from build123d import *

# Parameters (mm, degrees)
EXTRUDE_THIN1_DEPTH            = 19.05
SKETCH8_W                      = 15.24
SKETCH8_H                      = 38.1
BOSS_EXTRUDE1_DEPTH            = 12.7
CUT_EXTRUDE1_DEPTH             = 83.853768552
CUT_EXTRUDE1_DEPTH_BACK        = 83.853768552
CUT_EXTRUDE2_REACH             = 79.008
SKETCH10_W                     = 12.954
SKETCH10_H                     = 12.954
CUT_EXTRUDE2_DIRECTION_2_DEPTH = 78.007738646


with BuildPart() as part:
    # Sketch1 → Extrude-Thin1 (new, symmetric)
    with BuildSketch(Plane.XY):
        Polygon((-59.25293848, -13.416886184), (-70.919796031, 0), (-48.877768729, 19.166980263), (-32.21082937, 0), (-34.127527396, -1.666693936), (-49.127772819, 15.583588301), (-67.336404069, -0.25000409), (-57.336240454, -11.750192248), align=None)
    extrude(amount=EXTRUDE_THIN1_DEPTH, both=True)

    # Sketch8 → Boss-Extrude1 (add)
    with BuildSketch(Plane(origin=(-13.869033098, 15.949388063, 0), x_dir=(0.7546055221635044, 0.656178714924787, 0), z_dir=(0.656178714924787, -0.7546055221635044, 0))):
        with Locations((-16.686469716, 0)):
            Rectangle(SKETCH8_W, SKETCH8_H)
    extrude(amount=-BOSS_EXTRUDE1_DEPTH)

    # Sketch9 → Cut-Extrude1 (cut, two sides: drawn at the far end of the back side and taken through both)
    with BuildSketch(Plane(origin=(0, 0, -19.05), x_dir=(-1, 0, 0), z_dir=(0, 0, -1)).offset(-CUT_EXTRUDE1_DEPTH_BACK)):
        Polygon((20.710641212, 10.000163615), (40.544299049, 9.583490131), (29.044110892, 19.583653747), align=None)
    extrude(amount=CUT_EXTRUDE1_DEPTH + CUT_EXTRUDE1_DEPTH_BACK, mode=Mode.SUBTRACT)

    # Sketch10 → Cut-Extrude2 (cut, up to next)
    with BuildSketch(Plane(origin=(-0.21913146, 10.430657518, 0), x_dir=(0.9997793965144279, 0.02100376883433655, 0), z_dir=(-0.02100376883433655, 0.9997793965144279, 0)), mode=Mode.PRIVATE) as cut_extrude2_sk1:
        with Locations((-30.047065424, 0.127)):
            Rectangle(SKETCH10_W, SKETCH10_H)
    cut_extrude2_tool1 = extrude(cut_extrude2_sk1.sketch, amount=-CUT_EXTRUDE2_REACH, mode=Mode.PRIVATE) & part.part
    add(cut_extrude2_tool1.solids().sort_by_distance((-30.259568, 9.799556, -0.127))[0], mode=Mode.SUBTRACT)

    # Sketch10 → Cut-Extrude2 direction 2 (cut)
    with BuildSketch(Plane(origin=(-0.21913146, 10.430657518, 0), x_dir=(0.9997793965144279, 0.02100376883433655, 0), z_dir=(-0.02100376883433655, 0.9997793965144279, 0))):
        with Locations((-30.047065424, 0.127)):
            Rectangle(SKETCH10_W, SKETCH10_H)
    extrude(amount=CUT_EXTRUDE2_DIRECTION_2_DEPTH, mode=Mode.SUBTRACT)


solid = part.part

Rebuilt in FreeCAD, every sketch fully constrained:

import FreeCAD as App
import Part
import Sketcher
Q = App.Units.Quantity


def add_polygon(sketch, points):
    """Adds a closed chain of lines whose ends are joined by coincident constraints."""
    first, n = sketch.GeometryCount, len(points)
    for a, b in zip(points, points[1:] + points[:1]):
        sketch.addGeometry(Part.LineSegment(App.Vector(*a, 0), App.Vector(*b, 0)), False)
    for i in range(n):
        sketch.addConstraint(Sketcher.Constraint("Coincident", first + i, 2, first + (i + 1) % n, 1))

doc = App.newDocument("Part")
body = doc.addObject("PartDesign::Body", "Body")

# Sketch on XY plane
sketch1 = doc.addObject("Sketcher::SketchObject", "Sketch")
body.addObject(sketch1)
sketch1.AttachmentSupport = (doc.XY_Plane, [""])
sketch1.MapMode = "FlatFace"
add_polygon(sketch1, [(-70.919796, 0), (-59.252938, -13.416886), (-57.33624, -11.750192), (-67.336404, -0.250004), (-49.127773, 15.583588), (-34.127527, -1.666694), (-32.210829, 0), (-48.877769, 19.16698)])  # lines 0-7
sketch1.addConstraint([
    Sketcher.Constraint("PointOnObject", 5, 2, -1),
    Sketcher.Constraint("PointOnObject", 7, 2, -1),
    Sketcher.Constraint("Perpendicular", 0, 1),
    Sketcher.Constraint("Perpendicular", 1, 2),
    Sketcher.Constraint("Perpendicular", 2, 3),
    Sketcher.Constraint("Perpendicular", 3, 4),
    Sketcher.Constraint("Perpendicular", 4, 5),
    Sketcher.Constraint("Perpendicular", 5, 6),
    Sketcher.Constraint("Perpendicular", 6, 7),
    Sketcher.Constraint("Equal", 1, 5),
    Sketcher.Constraint("Distance", 6, Q("1 in")),
    Sketcher.Constraint("Distance", 0, Q("0.7 in")),
    Sketcher.Constraint("Distance", 1, Q("0.1 in")),
    Sketcher.Constraint("Distance", 2, Q("0.6 in")),
    Sketcher.Constraint("Distance", 3, Q("0.95 in")),
    Sketcher.Constraint("DistanceX", 0, 2, -1, 1, Q("59.252938 mm")),
])
pad1 = doc.addObject("PartDesign::Pad", "Pad")
body.addObject(pad1)
pad1.Profile = sketch1
pad1.Length = Q("1.5 in")
pad1.Midplane = True

# Sketch on an angled plane
sketch2 = doc.addObject("Sketcher::SketchObject", "Sketch001")
body.addObject(sketch2)
sketch2.Placement = App.Placement(App.Vector(-13.869033, 15.949388, 0), App.Rotation(App.Vector(0.754605522, 0.656178715, 0), App.Vector(0, 0, 1), App.Vector(0.656178715, -0.754605522, 0), "ZXY"))
add_polygon(sketch2, [(-24.30647, 19.05), (-24.30647, -19.05), (-9.06647, -19.05), (-9.06647, 19.05)])  # lines 0-3
sketch2.addConstraint([
    Sketcher.Constraint("Vertical", 0),
    Sketcher.Constraint("Horizontal", 1),
    Sketcher.Constraint("Vertical", 2),
    Sketcher.Constraint("Horizontal", 3),
    Sketcher.Constraint("DistanceX", 1, 1, 1, 2, Q("0.6 in")),
    Sketcher.Constraint("DistanceY", 0, 2, 0, 1, Q("1.5 in")),
    Sketcher.Constraint("DistanceY", 0, 2, -1, 1, Q("0.75 in")),
    Sketcher.Constraint("DistanceX", 0, 2, -1, 1, Q("24.30647 mm")),
])
pad2 = doc.addObject("PartDesign::Pad", "Pad001")
body.addObject(pad2)
pad2.Profile = sketch2
pad2.Length = Q("0.5 in")
pad2.Reversed = True

# Sketch on XY plane
sketch3 = doc.addObject("Sketcher::SketchObject", "Sketch002")
body.addObject(sketch3)
sketch3.AttachmentSupport = (doc.XY_Plane, [""])
sketch3.MapMode = "FlatFace"
sketch3.AttachmentOffset = App.Placement(App.Vector(0, 0, -0.75 * 25.4), App.Rotation())
add_polygon(sketch3, [(-20.710641, 10.000164), (-40.544299, 9.58349), (-29.044111, 19.583654)])  # lines 0-2
sketch3.addConstraint([
    Sketcher.Constraint("Perpendicular", 1, 2),
    Sketcher.Constraint("Distance", 1, Q("0.6 in")),
    Sketcher.Constraint("Distance", 2, Q("0.5 in")),
    Sketcher.Constraint("DistanceX", 0, 2, -1, 1, Q("40.544299 mm")),
    Sketcher.Constraint("DistanceY", -1, 1, 0, 2, Q("9.58349 mm")),
    Sketcher.Constraint("DistanceX", 1, 2, -1, 1, Q("29.044111 mm")),
])
pocket1 = doc.addObject("PartDesign::Pocket", "Pocket")
body.addObject(pocket1)
pocket1.Profile = sketch3
pocket1.Type = "ThroughAll"
pocket1.Midplane = True

# Sketch on an angled plane
sketch4 = doc.addObject("Sketcher::SketchObject", "Sketch003")
body.addObject(sketch4)
sketch4.Placement = App.Placement(App.Vector(-0.219131, 10.430658, 0), App.Rotation(App.Vector(0.999779397, 0.021003769, 0), App.Vector(0, 0, -1.000000001), App.Vector(-0.021003769, 0.999779397, 0), "ZXY"))
add_polygon(sketch4, [(-36.524065, 6.604), (-36.524065, -6.35), (-23.570065, -6.35), (-23.570065, 6.604)])  # lines 0-3
sketch4.addConstraint([
    Sketcher.Constraint("Vertical", 0),
    Sketcher.Constraint("Horizontal", 1),
    Sketcher.Constraint("Vertical", 2),
    Sketcher.Constraint("Horizontal", 3),
    Sketcher.Constraint("Equal", 3, 0),
    Sketcher.Constraint("DistanceX", 1, 1, 1, 2, Q("0.51 in")),
    Sketcher.Constraint("DistanceY", 0, 2, -1, 1, Q("0.25 in")),
    Sketcher.Constraint("DistanceX", 0, 2, -1, 1, Q("36.524065 mm")),
])
pocket2 = doc.addObject("PartDesign::Pocket", "Pocket001")
body.addObject(pocket2)
pocket2.Profile = sketch4
pocket2.Type = "UpToFirst"

# Sketch on an angled plane
sketch5 = doc.addObject("Sketcher::SketchObject", "Sketch004")
body.addObject(sketch5)
sketch5.Placement = App.Placement(App.Vector(-0.219131, 10.430658, 0), App.Rotation(App.Vector(0.999779397, 0.021003769, 0), App.Vector(0, 0, -1.000000001), App.Vector(-0.021003769, 0.999779397, 0), "ZXY"))
add_polygon(sketch5, [(-36.524065, 6.604), (-36.524065, -6.35), (-23.570065, -6.35), (-23.570065, 6.604)])  # lines 0-3
sketch5.addConstraint([
    Sketcher.Constraint("Vertical", 0),
    Sketcher.Constraint("Horizontal", 1),
    Sketcher.Constraint("Vertical", 2),
    Sketcher.Constraint("Horizontal", 3),
    Sketcher.Constraint("Equal", 3, 0),
    Sketcher.Constraint("DistanceX", 1, 1, 1, 2, Q("0.51 in")),
    Sketcher.Constraint("DistanceY", 0, 2, -1, 1, Q("0.25 in")),
    Sketcher.Constraint("DistanceX", 0, 2, -1, 1, Q("36.524065 mm")),
])
pocket3 = doc.addObject("PartDesign::Pocket", "Pocket002")
body.addObject(pocket3)
pocket3.Profile = sketch5
pocket3.Length = 78.007739
pocket3.Reversed = True

doc.recompute()
